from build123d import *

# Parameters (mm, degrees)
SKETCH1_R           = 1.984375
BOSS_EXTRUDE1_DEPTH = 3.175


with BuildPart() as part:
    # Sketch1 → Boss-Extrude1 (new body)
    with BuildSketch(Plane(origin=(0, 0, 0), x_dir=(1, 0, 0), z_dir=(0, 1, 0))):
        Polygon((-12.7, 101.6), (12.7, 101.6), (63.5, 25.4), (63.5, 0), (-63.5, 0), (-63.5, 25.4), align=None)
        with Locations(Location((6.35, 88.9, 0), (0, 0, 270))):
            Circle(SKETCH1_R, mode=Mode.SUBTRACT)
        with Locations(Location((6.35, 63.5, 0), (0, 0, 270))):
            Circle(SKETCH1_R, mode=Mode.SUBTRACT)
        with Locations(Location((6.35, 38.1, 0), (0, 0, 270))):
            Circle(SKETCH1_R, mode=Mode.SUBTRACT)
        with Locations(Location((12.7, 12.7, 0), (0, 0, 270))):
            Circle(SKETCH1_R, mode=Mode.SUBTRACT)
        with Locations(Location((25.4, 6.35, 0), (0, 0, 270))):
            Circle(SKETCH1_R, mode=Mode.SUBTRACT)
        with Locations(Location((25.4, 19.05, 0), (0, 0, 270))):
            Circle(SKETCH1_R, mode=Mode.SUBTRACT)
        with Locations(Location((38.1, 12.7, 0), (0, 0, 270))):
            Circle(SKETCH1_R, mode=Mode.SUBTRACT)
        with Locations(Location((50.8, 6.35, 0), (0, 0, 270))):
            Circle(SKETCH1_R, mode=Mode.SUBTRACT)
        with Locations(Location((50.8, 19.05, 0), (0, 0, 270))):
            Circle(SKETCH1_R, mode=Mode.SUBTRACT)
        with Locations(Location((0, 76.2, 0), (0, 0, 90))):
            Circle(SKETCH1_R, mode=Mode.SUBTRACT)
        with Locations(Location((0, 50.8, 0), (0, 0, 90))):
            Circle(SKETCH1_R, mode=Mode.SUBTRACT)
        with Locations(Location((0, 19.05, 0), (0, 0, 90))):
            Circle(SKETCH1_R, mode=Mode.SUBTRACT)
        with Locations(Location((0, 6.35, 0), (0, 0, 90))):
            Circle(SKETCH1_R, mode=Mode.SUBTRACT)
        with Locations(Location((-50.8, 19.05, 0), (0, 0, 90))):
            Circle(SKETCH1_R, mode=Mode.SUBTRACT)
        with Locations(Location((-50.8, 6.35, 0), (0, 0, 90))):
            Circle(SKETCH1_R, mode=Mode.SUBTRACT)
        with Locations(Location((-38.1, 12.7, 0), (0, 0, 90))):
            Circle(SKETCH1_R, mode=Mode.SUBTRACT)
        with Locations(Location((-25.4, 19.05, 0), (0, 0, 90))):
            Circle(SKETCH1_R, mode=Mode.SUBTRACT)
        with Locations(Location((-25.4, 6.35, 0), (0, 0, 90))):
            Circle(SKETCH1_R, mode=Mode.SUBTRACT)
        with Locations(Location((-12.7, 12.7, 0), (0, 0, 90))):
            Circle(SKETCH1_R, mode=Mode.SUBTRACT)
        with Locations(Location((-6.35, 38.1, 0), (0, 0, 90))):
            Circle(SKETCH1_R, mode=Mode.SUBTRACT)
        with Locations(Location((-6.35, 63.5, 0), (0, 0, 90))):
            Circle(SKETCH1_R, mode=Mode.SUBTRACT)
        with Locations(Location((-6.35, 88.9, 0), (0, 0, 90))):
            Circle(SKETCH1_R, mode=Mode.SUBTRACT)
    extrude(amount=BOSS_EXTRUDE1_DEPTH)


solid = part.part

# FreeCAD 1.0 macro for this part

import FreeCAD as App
import Part
import Sketcher
from FreeCAD import Vector
Q = App.Units.Quantity


def add_polygon(sketch, points):
    """Adds a closed chain of lines whose ends are joined by coincident constraints."""
    first, n = sketch.GeometryCount, len(points)
    for a, b in zip(points, points[1:] + points[:1]):
        sketch.addGeometry(Part.LineSegment(App.Vector(*a, 0), App.Vector(*b, 0)), False)
    for i in range(n):
        sketch.addConstraint(Sketcher.Constraint("Coincident", first + i, 2, first + (i + 1) % n, 1))

doc = App.newDocument("Part")
body = doc.addObject("PartDesign::Body", "Body")

# Sketch on XZ plane
sketch1 = body.newObject("Sketcher::SketchObject", "Sketch")
sketch1.AttachmentSupport = (doc.getObject("XZ_Plane"), [""])
sketch1.MapMode = "FlatFace"
add_polygon(sketch1, [(12.7, -101.6), (-12.7, -101.6), (-63.5, -25.4), (-63.5, 0), (63.5, 0), (63.5, -25.4)])  # lines 0-5
sketch1.addGeometry(Part.Circle(Vector(50.8, -6.35, 0), Vector(0, 0, 1), 1.984375), False)  # 6
sketch1.addGeometry(Part.Circle(Vector(38.1, -12.7, 0), Vector(0, 0, 1), 1.984375), False)  # 7
sketch1.addGeometry(Part.Circle(Vector(50.8, -19.05, 0), Vector(0, 0, 1), 1.984375), False)  # 8
sketch1.addGeometry(Part.Circle(Vector(25.4, -6.35, 0), Vector(0, 0, 1), 1.984375), False)  # 9
sketch1.addGeometry(Part.Circle(Vector(12.7, -12.7, 0), Vector(0, 0, 1), 1.984375), False)  # 10
sketch1.addGeometry(Part.Circle(Vector(25.4, -19.05, 0), Vector(0, 0, 1), 1.984375), False)  # 11
sketch1.addGeometry(Part.Circle(Vector(6.35, -38.1, 0), Vector(0, 0, 1), 1.984375), False)  # 12
sketch1.addGeometry(Part.Circle(Vector(0, -6.35, 0), Vector(0, 0, 1), 1.984375), False)  # 13
sketch1.addGeometry(Part.Circle(Vector(-12.7, -12.7, 0), Vector(0, 0, 1), 1.984375), False)  # 14
sketch1.addGeometry(Part.Circle(Vector(-25.4, -6.35, 0), Vector(0, 0, 1), 1.984375), False)  # 15
sketch1.addGeometry(Part.Circle(Vector(0, -19.05, 0), Vector(0, 0, 1), 1.984375), False)  # 16
sketch1.addGeometry(Part.Circle(Vector(-25.4, -19.05, 0), Vector(0, 0, 1), 1.984375), False)  # 17
sketch1.addGeometry(Part.Circle(Vector(-38.1, -12.7, 0), Vector(0, 0, 1), 1.984375), False)  # 18
sketch1.addGeometry(Part.Circle(Vector(-50.8, -6.35, 0), Vector(0, 0, 1), 1.984375), False)  # 19
sketch1.addGeometry(Part.Circle(Vector(-50.8, -19.05, 0), Vector(0, 0, 1), 1.984375), False)  # 20
sketch1.addGeometry(Part.Circle(Vector(-6.35, -38.1, 0), Vector(0, 0, 1), 1.984375), False)  # 21
sketch1.addGeometry(Part.Circle(Vector(6.35, -63.5, 0), Vector(0, 0, 1), 1.984375), False)  # 22
sketch1.addGeometry(Part.Circle(Vector(6.35, -88.9, 0), Vector(0, 0, 1), 1.984375), False)  # 23
sketch1.addGeometry(Part.Circle(Vector(0, -50.8, 0), Vector(0, 0, 1), 1.984375), False)  # 24
sketch1.addGeometry(Part.Circle(Vector(-6.35, -63.5, 0), Vector(0, 0, 1), 1.984375), False)  # 25
sketch1.addGeometry(Part.Circle(Vector(0, -76.2, 0), Vector(0, 0, 1), 1.984375), False)  # 26
sketch1.addGeometry(Part.Circle(Vector(-6.35, -88.9, 0), Vector(0, 0, 1), 1.984375), False)  # 27
sketch1.addConstraint(Sketcher.Constraint("Horizontal", 0))
sketch1.addConstraint(Sketcher.Constraint("Vertical", 2))
sketch1.addConstraint(Sketcher.Constraint("Horizontal", 3))
sketch1.addConstraint(Sketcher.Constraint("Vertical", 4))
sketch1.addConstraint(Sketcher.Constraint("Equal", 6, 7))
sketch1.addConstraint(Sketcher.Constraint("Equal", 7, 8))
sketch1.addConstraint(Sketcher.Constraint("Equal", 8, 9))
sketch1.addConstraint(Sketcher.Constraint("Equal", 9, 10))
sketch1.addConstraint(Sketcher.Constraint("Equal", 10, 11))
sketch1.addConstraint(Sketcher.Constraint("Equal", 11, 12))
sketch1.addConstraint(Sketcher.Constraint("Equal", 12, 13))
sketch1.addConstraint(Sketcher.Constraint("Equal", 13, 14))
sketch1.addConstraint(Sketcher.Constraint("Equal", 14, 15))
sketch1.addConstraint(Sketcher.Constraint("Equal", 15, 16))
sketch1.addConstraint(Sketcher.Constraint("Equal", 16, 17))
sketch1.addConstraint(Sketcher.Constraint("Equal", 17, 18))
sketch1.addConstraint(Sketcher.Constraint("Equal", 18, 19))
sketch1.addConstraint(Sketcher.Constraint("Equal", 19, 20))
sketch1.addConstraint(Sketcher.Constraint("Equal", 20, 21))
sketch1.addConstraint(Sketcher.Constraint("Equal", 21, 22))
sketch1.addConstraint(Sketcher.Constraint("Equal", 22, 23))
sketch1.addConstraint(Sketcher.Constraint("Equal", 23, 24))
sketch1.addConstraint(Sketcher.Constraint("Equal", 24, 25))
sketch1.addConstraint(Sketcher.Constraint("Equal", 25, 26))
sketch1.addConstraint(Sketcher.Constraint("Equal", 26, 27))
sketch1.addConstraint(Sketcher.Constraint("Symmetric", 2, 2, 3, 2, -1, 1))
sketch1.addConstraint(Sketcher.Constraint("Symmetric", 10, 3, 14, 3, -2))
sketch1.addConstraint(Sketcher.Constraint("Symmetric", 9, 3, 15, 3, -2))
sketch1.addConstraint(Sketcher.Constraint("Symmetric", 11, 3, 17, 3, -2))
sketch1.addConstraint(Sketcher.Constraint("Symmetric", 7, 3, 18, 3, -2))
sketch1.addConstraint(Sketcher.Constraint("Symmetric", 6, 3, 19, 3, -2))
sketch1.addConstraint(Sketcher.Constraint("Symmetric", 8, 3, 20, 3, -2))
sketch1.addConstraint(Sketcher.Constraint("Symmetric", 12, 3, 21, 3, -2))
sketch1.addConstraint(Sketcher.Constraint("Symmetric", 22, 3, 25, 3, -2))
sketch1.addConstraint(Sketcher.Constraint("Symmetric", 23, 3, 27, 3, -2))
sketch1.addConstraint(Sketcher.Constraint("PointOnObject", 13, 3, -2))
sketch1.addConstraint(Sketcher.Constraint("PointOnObject", 16, 3, -2))
sketch1.addConstraint(Sketcher.Constraint("PointOnObject", 24, 3, -2))
sketch1.addConstraint(Sketcher.Constraint("PointOnObject", 26, 3, -2))
sketch1.addConstraint(Sketcher.Constraint("Horizontal", 6, 3, 9, 3))
sketch1.addConstraint(Sketcher.Constraint("Horizontal", 7, 3, 10, 3))
sketch1.addConstraint(Sketcher.Constraint("Horizontal", 8, 3, 11, 3))
sketch1.addConstraint(Sketcher.Constraint("Horizontal", 9, 3, 13, 3))
sketch1.addConstraint(Sketcher.Constraint("Horizontal", 11, 3, 16, 3))
sketch1.addConstraint(Sketcher.Constraint("Horizontal", 1, 2, 4, 2))
sketch1.addConstraint(Sketcher.Constraint("Vertical", 6, 3, 8, 3))
sketch1.addConstraint(Sketcher.Constraint("Vertical", 9, 3, 11, 3))
sketch1.addConstraint(Sketcher.Constraint("Vertical", 12, 3, 22, 3))
sketch1.addConstraint(Sketcher.Constraint("Vertical", 22, 3, 23, 3))
sketch1.addConstraint(Sketcher.Constraint("Vertical", 14, 3, 0, 2))
sketch1.addConstraint(Sketcher.Constraint("Vertical", 10, 3, 5, 2))
sketch1.addConstraint(Sketcher.Constraint("Equal", 0, 2))
sketch1.addConstraint(Sketcher.Constraint("DistanceX", 0, 2, 0, 1, Q("1 in")))
sketch1.addConstraint(Sketcher.Constraint("DistanceX", 3, 1, 3, 2, Q("5 in")))
sketch1.addConstraint(Sketcher.Constraint("Diameter", 6, Q("0.15625 in")))
sketch1.addConstraint(Sketcher.Constraint("DistanceX", -1, 1, 6, 3, Q("2 in")))
sketch1.addConstraint(Sketcher.Constraint("DistanceX", -1, 1, 9, 3, Q("1 in")))
sketch1.addConstraint(Sketcher.Constraint("DistanceY", 24, 3, -1, 1, Q("2 in")))
sketch1.addConstraint(Sketcher.Constraint("DistanceY", 26, 3, -1, 1, Q("3 in")))
sketch1.addConstraint(Sketcher.Constraint("DistanceY", 0, 2, -1, 1, Q("4 in")))
sketch1.addConstraint(Sketcher.Constraint("DistanceX", 10, 3, 7, 3, Q("1 in")))
sketch1.addConstraint(Sketcher.Constraint("DistanceY", 12, 3, 10, 3, Q("1 in")))
sketch1.addConstraint(Sketcher.Constraint("DistanceY", 22, 3, 12, 3, Q("1 in")))
sketch1.addConstraint(Sketcher.Constraint("DistanceY", 23, 3, 22, 3, Q("1 in")))
sketch1.addConstraint(Sketcher.Constraint("DistanceY", 7, 3, -1, 1, Q("0.5 in")))
sketch1.addConstraint(Sketcher.Constraint("DistanceY", 8, 3, 6, 3, Q("0.5 in")))
sketch1.addConstraint(Sketcher.Constraint("DistanceX", 21, 3, 12, 3, Q("0.5 in")))
sketch1.addConstraint(Sketcher.Constraint("DistanceY", 6, 3, -1, 1, Q("0.25 in")))
pad1 = body.newObject("PartDesign::Pad", "Pad")
pad1.Profile = sketch1
pad1.Length = Q("0.125 in")
pad1.Reversed = True

doc.recompute()
